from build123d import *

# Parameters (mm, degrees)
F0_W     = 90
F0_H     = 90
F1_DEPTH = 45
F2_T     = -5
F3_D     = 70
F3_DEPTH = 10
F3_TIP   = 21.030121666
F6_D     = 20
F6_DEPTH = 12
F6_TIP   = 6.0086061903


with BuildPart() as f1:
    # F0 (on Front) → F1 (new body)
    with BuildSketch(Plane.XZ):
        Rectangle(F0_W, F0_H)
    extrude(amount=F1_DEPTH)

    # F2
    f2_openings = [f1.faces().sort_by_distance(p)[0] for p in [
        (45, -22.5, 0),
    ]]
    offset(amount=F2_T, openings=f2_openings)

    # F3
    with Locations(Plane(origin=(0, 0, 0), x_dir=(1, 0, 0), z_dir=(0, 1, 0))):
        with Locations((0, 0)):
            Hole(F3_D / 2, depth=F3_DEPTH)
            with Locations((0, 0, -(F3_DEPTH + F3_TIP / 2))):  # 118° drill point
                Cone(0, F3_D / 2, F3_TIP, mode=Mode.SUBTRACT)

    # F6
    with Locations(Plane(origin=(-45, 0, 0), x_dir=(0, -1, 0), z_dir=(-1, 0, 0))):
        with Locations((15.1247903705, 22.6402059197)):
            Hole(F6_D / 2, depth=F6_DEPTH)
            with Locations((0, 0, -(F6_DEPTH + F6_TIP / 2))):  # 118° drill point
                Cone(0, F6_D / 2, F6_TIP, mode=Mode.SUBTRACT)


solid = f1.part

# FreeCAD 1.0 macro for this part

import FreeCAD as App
import Part
import Sketcher

V = App.Vector


def faces_at(feature, points):
    """Names of the faces that lie closest to the given points."""
    faces = feature.Shape.Faces
    near = lambda p: min(range(len(faces)), key=lambda i: faces[i].distToShape(Part.Vertex(*p))[0])
    return sorted({f"Face{near(p) + 1}" for p in points})


def add_polygon(sketch, points):
    """Adds a closed chain of lines whose ends are joined by coincident constraints."""
    first, n = sketch.GeometryCount, len(points)
    for a, b in zip(points, points[1:] + points[:1]):
        sketch.addGeometry(Part.LineSegment(App.Vector(*a, 0), App.Vector(*b, 0)), False)
    for i in range(n):
        sketch.addConstraint(Sketcher.Constraint("Coincident", first + i, 2, first + (i + 1) % n, 1))

doc = App.newDocument("Part")
body = doc.addObject("PartDesign::Body", "Body")

sketch1 = body.newObject("Sketcher::SketchObject", "Sketch")
sketch1.AttachmentSupport = (doc.getObject("XZ_Plane"), [""])
sketch1.MapMode = "FlatFace"
add_polygon(sketch1, [(-45, 45), (-45, -45), (45, -45), (45, 45)])
sketch1.addConstraint(Sketcher.Constraint("Vertical", 0))
sketch1.addConstraint(Sketcher.Constraint("Horizontal", 1))
sketch1.addConstraint(Sketcher.Constraint("Vertical", 2))
sketch1.addConstraint(Sketcher.Constraint("Horizontal", 3))
sketch1.addConstraint(Sketcher.Constraint("Symmetric", 0, 2, 2, 2, -1, 1))
sketch1.addConstraint(Sketcher.Constraint("Equal", 3, 0))
sketch1.addConstraint(Sketcher.Constraint("DistanceX", 1, 1, 1, 2, 90.0))
pad1 = body.newObject("PartDesign::Pad", "Pad")
pad1.Profile = sketch1
pad1.Length = 45
doc.recompute()

thickness = body.newObject("PartDesign::Thickness", "Thickness")
thickness.Base = (pad1, faces_at(pad1, [(45, -22.5, 0)]))
thickness.Value = 5
thickness.Reversed = True
thickness.Join = "Arc"

sketch2 = body.newObject("Sketcher::SketchObject", "Sketch001")
sketch2.AttachmentSupport = (doc.getObject("XZ_Plane"), [""])
sketch2.MapMode = "FlatFace"
sketch2.addGeometry(Part.Circle(V(0, 0, 0), V(0, 0, 1), 35), False)
sketch2.addConstraint(Sketcher.Constraint("Coincident", 0, 3, -1, 1))
sketch2.addConstraint(Sketcher.Constraint("Diameter", 0, 70.0))
doc.recompute()
hole = body.newObject("PartDesign::Hole", "Hole")
hole.Profile = sketch2
hole.ThreadType = "None"
hole.Diameter = 70
hole.DepthType = "Dimension"
hole.Depth = 10
hole.DrillPoint = "Angled"
hole.DrillPointAngle = 118
hole.Reversed = True

sketch3 = body.newObject("Sketcher::SketchObject", "Sketch002")
sketch3.AttachmentSupport = (doc.getObject("YZ_Plane"), [""])
sketch3.MapMode = "FlatFace"
sketch3.AttachmentOffset = App.Placement(V(0, 0, -45), App.Rotation())
sketch3.addGeometry(Part.Circle(V(-15, 23, 0), V(0, 0, 1), 10), False)
sketch3.addConstraint(Sketcher.Constraint("Diameter", 0, 20.0))
sketch3.addConstraint(Sketcher.Constraint("DistanceX", 0, 3, -1, 1, 15.12479))
sketch3.addConstraint(Sketcher.Constraint("DistanceY", -1, 1, 0, 3, 22.640206))
doc.recompute()
hole2 = body.newObject("PartDesign::Hole", "Hole001")
hole2.Profile = sketch3
hole2.ThreadType = "None"
hole2.Diameter = 20
hole2.DepthType = "Dimension"
hole2.Depth = 12
hole2.DrillPoint = "Angled"
hole2.DrillPointAngle = 118
hole2.Reversed = True

doc.recompute()
